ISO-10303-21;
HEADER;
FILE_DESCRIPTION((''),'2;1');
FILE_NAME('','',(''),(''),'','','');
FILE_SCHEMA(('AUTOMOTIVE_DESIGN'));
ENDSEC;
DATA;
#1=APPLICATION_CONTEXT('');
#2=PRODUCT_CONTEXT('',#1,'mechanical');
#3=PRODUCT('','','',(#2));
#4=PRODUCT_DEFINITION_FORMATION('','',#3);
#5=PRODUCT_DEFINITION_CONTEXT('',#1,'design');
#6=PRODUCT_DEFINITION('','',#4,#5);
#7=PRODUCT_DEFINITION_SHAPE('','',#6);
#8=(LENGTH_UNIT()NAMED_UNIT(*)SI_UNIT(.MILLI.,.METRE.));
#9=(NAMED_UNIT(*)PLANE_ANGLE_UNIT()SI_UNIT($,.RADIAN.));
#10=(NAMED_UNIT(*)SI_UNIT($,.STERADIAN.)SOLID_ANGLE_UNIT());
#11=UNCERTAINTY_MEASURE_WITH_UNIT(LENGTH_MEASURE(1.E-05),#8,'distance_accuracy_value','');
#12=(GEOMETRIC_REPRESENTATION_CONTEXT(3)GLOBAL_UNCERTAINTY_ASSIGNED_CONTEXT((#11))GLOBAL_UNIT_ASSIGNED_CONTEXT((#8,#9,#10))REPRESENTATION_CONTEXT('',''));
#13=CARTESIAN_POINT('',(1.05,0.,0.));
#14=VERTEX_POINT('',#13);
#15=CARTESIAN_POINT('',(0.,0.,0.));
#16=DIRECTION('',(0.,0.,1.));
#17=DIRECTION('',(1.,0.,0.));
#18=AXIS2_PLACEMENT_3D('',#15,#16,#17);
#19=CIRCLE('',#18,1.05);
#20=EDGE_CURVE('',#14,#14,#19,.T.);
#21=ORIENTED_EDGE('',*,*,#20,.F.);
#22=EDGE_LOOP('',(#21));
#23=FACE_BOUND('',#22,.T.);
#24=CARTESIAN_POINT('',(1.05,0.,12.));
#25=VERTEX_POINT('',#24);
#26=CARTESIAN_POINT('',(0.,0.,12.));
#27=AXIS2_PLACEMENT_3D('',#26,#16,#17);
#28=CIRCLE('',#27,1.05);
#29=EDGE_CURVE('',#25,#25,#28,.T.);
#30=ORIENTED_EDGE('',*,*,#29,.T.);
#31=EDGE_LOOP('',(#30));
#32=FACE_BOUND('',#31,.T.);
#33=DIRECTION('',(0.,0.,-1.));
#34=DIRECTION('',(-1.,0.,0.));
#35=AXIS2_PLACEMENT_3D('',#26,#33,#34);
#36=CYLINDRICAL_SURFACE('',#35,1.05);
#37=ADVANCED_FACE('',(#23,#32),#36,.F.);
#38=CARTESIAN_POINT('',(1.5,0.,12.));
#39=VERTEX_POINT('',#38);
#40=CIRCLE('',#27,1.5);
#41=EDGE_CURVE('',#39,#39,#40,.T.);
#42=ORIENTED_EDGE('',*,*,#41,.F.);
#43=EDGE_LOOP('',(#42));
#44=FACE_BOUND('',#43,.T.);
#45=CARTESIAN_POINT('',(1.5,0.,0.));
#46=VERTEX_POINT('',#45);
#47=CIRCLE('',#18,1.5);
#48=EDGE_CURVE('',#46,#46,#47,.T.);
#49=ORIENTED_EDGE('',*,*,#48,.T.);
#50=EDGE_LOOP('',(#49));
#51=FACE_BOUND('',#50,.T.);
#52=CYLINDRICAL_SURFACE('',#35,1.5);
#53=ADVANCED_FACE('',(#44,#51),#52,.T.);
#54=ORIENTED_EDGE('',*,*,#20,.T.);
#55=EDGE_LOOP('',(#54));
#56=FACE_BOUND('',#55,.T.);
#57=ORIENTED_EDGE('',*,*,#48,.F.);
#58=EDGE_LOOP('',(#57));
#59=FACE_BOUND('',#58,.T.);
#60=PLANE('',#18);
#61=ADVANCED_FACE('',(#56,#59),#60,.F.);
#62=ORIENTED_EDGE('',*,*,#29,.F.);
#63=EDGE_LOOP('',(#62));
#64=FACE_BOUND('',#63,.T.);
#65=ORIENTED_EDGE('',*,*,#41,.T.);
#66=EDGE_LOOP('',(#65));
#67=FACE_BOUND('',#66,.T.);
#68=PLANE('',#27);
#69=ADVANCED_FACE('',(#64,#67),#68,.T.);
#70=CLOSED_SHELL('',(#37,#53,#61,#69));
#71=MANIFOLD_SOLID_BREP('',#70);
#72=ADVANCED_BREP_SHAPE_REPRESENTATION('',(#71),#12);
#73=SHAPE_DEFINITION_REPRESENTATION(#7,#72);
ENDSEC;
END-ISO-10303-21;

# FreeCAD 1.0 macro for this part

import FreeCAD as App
import Part
import Sketcher
from FreeCAD import Vector

doc = App.newDocument("Part")
body = doc.addObject("PartDesign::Body", "Body")

sketch1 = doc.addObject("Sketcher::SketchObject", "Sketch")
body.addObject(sketch1)
sketch1.AttachmentSupport = (doc.XY_Plane, [""])
sketch1.MapMode = "FlatFace"
sketch1.addGeometry([
    Part.Circle(Vector(0, 0, 0), Vector(0, 0, 1), 1.5),
    Part.Circle(Vector(0, 0, 0), Vector(0, 0, 1), 1.05),
], False)
sketch1.addConstraint([
    Sketcher.Constraint("Coincident", 0, 3, -1, 1),
    Sketcher.Constraint("Coincident", 1, 3, -1, 1),
    Sketcher.Constraint("Diameter", 0, 3.0),
    Sketcher.Constraint("Diameter", 1, 2.1),
])
pad1 = doc.addObject("PartDesign::Pad", "Pad")
body.addObject(pad1)
pad1.Profile = sketch1
pad1.Length = 12

doc.recompute()
